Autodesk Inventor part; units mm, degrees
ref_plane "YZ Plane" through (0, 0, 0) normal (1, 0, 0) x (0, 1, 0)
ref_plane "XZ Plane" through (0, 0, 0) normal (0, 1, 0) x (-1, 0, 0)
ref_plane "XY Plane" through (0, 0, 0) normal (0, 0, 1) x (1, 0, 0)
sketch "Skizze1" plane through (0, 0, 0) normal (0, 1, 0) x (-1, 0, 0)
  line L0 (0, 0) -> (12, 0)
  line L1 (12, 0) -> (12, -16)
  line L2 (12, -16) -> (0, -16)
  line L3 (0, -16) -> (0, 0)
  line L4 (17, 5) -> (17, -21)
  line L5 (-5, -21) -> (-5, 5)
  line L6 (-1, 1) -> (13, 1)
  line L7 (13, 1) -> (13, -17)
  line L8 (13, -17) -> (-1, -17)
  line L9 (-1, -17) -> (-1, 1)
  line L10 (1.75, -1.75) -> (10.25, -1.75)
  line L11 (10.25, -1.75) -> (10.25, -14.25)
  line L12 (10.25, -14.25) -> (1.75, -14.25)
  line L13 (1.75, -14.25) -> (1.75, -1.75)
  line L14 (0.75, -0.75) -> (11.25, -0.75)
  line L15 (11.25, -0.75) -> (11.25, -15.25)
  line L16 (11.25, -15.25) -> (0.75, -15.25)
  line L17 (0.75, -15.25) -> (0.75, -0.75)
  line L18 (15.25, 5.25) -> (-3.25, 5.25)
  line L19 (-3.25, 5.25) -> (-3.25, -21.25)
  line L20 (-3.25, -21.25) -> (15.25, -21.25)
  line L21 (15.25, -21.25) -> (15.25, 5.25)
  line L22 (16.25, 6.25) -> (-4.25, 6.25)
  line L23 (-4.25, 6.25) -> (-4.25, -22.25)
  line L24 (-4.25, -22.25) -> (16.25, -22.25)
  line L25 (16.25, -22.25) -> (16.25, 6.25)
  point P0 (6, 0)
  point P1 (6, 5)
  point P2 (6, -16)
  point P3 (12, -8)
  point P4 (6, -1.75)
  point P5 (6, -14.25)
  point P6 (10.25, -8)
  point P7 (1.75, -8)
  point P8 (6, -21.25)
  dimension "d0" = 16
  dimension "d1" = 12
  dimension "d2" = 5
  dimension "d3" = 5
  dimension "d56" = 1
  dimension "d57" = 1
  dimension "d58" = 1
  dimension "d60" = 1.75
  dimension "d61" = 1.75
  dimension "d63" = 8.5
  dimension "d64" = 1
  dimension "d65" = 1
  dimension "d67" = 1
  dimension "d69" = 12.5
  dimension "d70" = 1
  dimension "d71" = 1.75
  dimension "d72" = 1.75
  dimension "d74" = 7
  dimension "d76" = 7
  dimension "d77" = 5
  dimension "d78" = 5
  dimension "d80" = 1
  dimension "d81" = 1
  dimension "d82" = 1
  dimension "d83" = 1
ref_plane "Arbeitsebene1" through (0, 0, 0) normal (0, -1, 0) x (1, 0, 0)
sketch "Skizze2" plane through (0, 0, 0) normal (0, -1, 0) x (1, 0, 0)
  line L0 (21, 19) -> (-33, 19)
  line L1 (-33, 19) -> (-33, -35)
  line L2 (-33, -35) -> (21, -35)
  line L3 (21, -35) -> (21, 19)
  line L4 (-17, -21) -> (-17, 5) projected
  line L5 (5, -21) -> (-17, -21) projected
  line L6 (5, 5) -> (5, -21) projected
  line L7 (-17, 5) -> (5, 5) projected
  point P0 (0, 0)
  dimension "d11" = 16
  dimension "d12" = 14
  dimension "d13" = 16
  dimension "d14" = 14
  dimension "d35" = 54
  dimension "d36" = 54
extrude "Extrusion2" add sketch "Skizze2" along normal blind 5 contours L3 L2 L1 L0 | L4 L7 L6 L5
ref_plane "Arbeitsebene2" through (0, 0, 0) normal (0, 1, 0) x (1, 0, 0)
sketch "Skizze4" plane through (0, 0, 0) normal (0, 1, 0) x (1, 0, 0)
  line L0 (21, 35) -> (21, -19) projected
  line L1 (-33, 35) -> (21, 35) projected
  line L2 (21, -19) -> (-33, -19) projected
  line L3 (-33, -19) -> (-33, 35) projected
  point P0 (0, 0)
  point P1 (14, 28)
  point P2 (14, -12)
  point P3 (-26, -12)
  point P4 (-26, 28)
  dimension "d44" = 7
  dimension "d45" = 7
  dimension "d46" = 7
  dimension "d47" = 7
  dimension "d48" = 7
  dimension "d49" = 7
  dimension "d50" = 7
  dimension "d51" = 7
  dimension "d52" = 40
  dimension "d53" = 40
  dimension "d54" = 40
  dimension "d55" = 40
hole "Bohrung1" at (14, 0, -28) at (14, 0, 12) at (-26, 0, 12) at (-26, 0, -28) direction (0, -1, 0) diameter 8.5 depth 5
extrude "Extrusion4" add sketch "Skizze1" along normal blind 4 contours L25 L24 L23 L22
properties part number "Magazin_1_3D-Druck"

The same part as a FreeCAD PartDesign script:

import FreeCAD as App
import Part
import Sketcher
Q = App.Units.Quantity


def add_polygon(sketch, points):
    """Adds a closed chain of lines whose ends are joined by coincident constraints."""
    first, n = sketch.GeometryCount, len(points)
    for a, b in zip(points, points[1:] + points[:1]):
        sketch.addGeometry(Part.LineSegment(App.Vector(*a, 0), App.Vector(*b, 0)), False)
    for i in range(n):
        sketch.addConstraint(Sketcher.Constraint("Coincident", first + i, 2, first + (i + 1) % n, 1))

doc = App.newDocument("Part")
body = doc.addObject("PartDesign::Body", "Body")

sketch1 = doc.addObject("Sketcher::SketchObject", "Sketch")
body.addObject(sketch1)
sketch1.AttachmentSupport = (doc.XZ_Plane, [""])
sketch1.MapMode = "FlatFace"
add_polygon(sketch1, [(21, -35), (21, 19), (-33, 19), (-33, -35)])
sketch1.addConstraint([
    Sketcher.Constraint("Vertical", 0),
    Sketcher.Constraint("Horizontal", 1),
    Sketcher.Constraint("Vertical", 2),
    Sketcher.Constraint("Horizontal", 3),
    Sketcher.Constraint("Equal", 3, 0),
    Sketcher.Constraint("DistanceX", 1, 2, 1, 1, Q("54 mm")),
    Sketcher.Constraint("DistanceX", -1, 1, 0, 2, Q("21 mm")),
    Sketcher.Constraint("DistanceY", -1, 1, 0, 2, Q("19 mm")),
])
pad1 = doc.addObject("PartDesign::Pad", "Pad")
body.addObject(pad1)
pad1.Profile = sketch1
pad1.Length = 5

sketch2 = doc.addObject("Sketcher::SketchObject", "Sketch001")
body.addObject(sketch2)
sketch2.AttachmentSupport = (doc.XZ_Plane, [""])
sketch2.MapMode = "FlatFace"
sketch2.addGeometry([
    Part.Circle(App.Vector(14, -28, 0), App.Vector(0, 0, 1), 4.2),
    Part.Circle(App.Vector(14, 12, 0), App.Vector(0, 0, 1), 4.2),
    Part.Circle(App.Vector(-26, 12, 0), App.Vector(0, 0, 1), 4.2),
    Part.Circle(App.Vector(-26, -28, 0), App.Vector(0, 0, 1), 4.2),
], False)
sketch2.addConstraint([
    Sketcher.Constraint("Equal", 0, 1),
    Sketcher.Constraint("Equal", 1, 2),
    Sketcher.Constraint("Equal", 2, 3),
    Sketcher.Constraint("Horizontal", 1, 3, 2, 3),
    Sketcher.Constraint("Horizontal", 0, 3, 3, 3),
    Sketcher.Constraint("Vertical", 0, 3, 1, 3),
    Sketcher.Constraint("Vertical", 2, 3, 3, 3),
    Sketcher.Constraint("Diameter", 0, Q("8.5 mm")),
    Sketcher.Constraint("DistanceX", -1, 1, 0, 3, Q("14 mm")),
    Sketcher.Constraint("DistanceY", 0, 3, -1, 1, Q("28 mm")),
    Sketcher.Constraint("DistanceY", -1, 1, 1, 3, Q("12 mm")),
    Sketcher.Constraint("DistanceX", 2, 3, -1, 1, Q("26 mm")),
])
doc.recompute()
hole = doc.addObject("PartDesign::Hole", "Hole")
body.addObject(hole)
hole.Profile = sketch2
hole.ThreadType = "None"
hole.Diameter = 8.5
hole.DepthType = "Dimension"
hole.Depth = 5
hole.DrillPoint = "Flat"
hole.Reversed = True

sketch3 = doc.addObject("Sketcher::SketchObject", "Sketch002")
body.addObject(sketch3)
sketch3.AttachmentSupport = (doc.XZ_Plane, [""])
sketch3.MapMode = "FlatFace"
add_polygon(sketch3, [(-16, -22), (-16, 6), (4, 6), (4, -22)])
add_polygon(sketch3, [(3, 5), (-15, 5), (-15, -21), (3, -21)])
sketch3.addConstraint([
    Sketcher.Constraint("Vertical", 0),
    Sketcher.Constraint("Horizontal", 1),
    Sketcher.Constraint("Vertical", 2),
    Sketcher.Constraint("Horizontal", 3),
    Sketcher.Constraint("Horizontal", 4),
    Sketcher.Constraint("Vertical", 5),
    Sketcher.Constraint("Horizontal", 6),
    Sketcher.Constraint("Vertical", 7),
    Sketcher.Constraint("DistanceX", 0, 2, 4, 2, Q("1 mm")),
    Sketcher.Constraint("DistanceY", 4, 2, 0, 2, Q("1 mm")),
    Sketcher.Constraint("DistanceY", 3, 2, 5, 2, Q("1 mm")),
    Sketcher.Constraint("DistanceX", 6, 2, 2, 2, Q("1 mm")),
    Sketcher.Constraint("DistanceX", 1, 1, 1, 2, Q("20.5 mm")),
    Sketcher.Constraint("DistanceY", 0, 1, 0, 2, Q("28.5 mm")),
    Sketcher.Constraint("DistanceX", 0, 2, -1, 1, Q("16.25 mm")),
    Sketcher.Constraint("DistanceY", -1, 1, 0, 2, Q("6.25 mm")),
])
pad2 = doc.addObject("PartDesign::Pad", "Pad001")
body.addObject(pad2)
pad2.Profile = sketch3
pad2.Length = 4
pad2.Reversed = True

doc.recompute()
